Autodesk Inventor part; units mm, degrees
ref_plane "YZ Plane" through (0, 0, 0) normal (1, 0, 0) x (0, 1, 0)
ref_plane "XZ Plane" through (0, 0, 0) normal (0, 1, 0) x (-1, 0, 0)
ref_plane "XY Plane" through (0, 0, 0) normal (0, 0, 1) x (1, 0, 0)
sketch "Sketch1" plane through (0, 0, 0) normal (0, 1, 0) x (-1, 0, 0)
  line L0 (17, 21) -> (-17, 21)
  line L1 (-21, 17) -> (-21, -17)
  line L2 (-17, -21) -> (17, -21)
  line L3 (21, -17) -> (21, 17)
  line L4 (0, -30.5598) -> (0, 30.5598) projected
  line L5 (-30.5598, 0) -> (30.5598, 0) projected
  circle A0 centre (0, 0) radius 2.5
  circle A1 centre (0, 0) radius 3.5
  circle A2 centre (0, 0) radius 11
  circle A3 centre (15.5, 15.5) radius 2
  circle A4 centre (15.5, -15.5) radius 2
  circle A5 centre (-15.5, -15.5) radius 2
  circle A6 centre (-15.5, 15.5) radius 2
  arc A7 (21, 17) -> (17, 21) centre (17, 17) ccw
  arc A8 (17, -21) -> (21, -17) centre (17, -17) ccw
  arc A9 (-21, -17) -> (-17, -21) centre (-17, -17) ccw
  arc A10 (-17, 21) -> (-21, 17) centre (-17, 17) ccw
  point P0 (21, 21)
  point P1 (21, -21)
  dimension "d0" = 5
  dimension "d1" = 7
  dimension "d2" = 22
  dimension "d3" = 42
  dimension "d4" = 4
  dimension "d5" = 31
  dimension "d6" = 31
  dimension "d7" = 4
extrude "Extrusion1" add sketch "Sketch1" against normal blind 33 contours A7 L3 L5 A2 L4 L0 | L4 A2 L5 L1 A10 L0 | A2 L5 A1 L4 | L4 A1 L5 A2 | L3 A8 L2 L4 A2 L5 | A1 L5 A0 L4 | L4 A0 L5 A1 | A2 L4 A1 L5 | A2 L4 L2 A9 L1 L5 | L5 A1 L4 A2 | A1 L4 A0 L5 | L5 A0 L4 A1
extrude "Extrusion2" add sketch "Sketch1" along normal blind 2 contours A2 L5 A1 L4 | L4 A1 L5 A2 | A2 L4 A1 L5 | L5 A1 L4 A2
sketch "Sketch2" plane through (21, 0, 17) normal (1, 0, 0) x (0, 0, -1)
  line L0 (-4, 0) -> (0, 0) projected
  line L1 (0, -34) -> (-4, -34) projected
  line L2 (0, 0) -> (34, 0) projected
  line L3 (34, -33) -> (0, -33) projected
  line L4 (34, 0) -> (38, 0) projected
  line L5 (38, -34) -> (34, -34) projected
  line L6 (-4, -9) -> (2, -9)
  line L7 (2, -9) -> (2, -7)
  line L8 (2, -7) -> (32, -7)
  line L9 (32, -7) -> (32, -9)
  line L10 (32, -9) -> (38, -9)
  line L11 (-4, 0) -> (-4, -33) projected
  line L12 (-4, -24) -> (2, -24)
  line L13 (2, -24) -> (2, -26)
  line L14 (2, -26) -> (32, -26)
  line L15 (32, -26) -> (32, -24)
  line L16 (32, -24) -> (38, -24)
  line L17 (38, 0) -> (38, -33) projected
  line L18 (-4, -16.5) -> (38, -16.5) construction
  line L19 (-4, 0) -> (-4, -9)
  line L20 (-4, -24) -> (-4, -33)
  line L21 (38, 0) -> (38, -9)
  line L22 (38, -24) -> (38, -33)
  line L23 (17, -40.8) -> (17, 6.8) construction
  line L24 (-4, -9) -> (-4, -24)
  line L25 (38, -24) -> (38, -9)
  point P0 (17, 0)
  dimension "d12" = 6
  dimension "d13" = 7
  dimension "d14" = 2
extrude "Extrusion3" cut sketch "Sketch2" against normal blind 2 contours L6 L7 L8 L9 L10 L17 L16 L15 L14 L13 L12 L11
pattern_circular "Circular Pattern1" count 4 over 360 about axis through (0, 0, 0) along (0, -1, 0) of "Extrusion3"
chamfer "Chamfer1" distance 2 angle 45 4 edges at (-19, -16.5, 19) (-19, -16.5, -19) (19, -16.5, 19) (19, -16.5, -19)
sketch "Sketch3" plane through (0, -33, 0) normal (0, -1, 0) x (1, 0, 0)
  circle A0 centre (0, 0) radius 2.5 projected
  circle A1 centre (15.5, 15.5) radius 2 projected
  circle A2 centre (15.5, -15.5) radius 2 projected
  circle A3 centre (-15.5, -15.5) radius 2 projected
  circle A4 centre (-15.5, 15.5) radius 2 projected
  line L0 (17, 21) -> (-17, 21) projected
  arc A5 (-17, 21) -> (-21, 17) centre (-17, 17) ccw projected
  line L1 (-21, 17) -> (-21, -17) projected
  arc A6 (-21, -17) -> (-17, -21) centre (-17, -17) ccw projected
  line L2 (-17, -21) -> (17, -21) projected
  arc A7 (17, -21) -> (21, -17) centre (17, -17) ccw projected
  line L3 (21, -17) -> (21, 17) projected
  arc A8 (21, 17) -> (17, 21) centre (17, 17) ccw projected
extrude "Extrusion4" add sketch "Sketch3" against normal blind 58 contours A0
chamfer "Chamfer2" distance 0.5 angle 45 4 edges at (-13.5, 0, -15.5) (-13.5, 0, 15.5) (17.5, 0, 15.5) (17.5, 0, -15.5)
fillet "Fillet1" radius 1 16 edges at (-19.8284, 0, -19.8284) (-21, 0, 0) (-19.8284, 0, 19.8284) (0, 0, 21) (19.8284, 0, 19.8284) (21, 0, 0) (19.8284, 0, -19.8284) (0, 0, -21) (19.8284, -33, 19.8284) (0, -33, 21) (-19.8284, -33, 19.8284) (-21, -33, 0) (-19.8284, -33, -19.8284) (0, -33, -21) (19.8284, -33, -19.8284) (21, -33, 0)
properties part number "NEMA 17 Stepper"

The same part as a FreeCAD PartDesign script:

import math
import FreeCAD as App
import Part
import Sketcher
from FreeCAD import Vector
Q = App.Units.Quantity


def edges_at(feature, points):
    """Names of the edges that pass closest to the given points."""
    edges = feature.Shape.Edges
    near = lambda p: min(range(len(edges)), key=lambda i: edges[i].distToShape(Part.Vertex(*p))[0])
    return sorted({f"Edge{near(p) + 1}" for p in points})


def add_polygon(sketch, points):
    """Adds a closed chain of lines whose ends are joined by coincident constraints."""
    first, n = sketch.GeometryCount, len(points)
    for a, b in zip(points, points[1:] + points[:1]):
        sketch.addGeometry(Part.LineSegment(App.Vector(*a, 0), App.Vector(*b, 0)), False)
    for i in range(n):
        sketch.addConstraint(Sketcher.Constraint("Coincident", first + i, 2, first + (i + 1) % n, 1))

doc = App.newDocument("Part")
body = doc.addObject("PartDesign::Body", "Body")

# Sketch on XZ plane
sketch1 = body.newObject("Sketcher::SketchObject", "Sketch")
sketch1.AttachmentSupport = (doc.getObject("XZ_Plane"), [""])
sketch1.MapMode = "FlatFace"
sketch1.addGeometry([
    Part.ArcOfCircle(Part.Circle(Vector(-17, 17, 0), Vector(0, 0, 1), 4), math.radians(90), math.radians(180)),  # 0
    Part.LineSegment(Vector(-17, 21, 0), Vector(17, 21, 0)),  # 1
    Part.ArcOfCircle(Part.Circle(Vector(17, 17, 0), Vector(0, 0, 1), 4), math.radians(0), math.radians(90)),  # 2
    Part.LineSegment(Vector(21, 17, 0), Vector(21, -17, 0)),  # 3
    Part.ArcOfCircle(Part.Circle(Vector(17, -17, 0), Vector(0, 0, 1), 4), math.radians(-90), math.radians(0)),  # 4
    Part.LineSegment(Vector(17, -21, 0), Vector(-17, -21, 0)),  # 5
    Part.ArcOfCircle(Part.Circle(Vector(-17, -17, 0), Vector(0, 0, 1), 4), math.radians(180), math.radians(270)),  # 6
    Part.LineSegment(Vector(-21, -17, 0), Vector(-21, 17, 0)),  # 7
    Part.Circle(Vector(-15.5, 15.5, 0), Vector(0, 0, 1), 2),  # 8
    Part.Circle(Vector(-15.5, -15.5, 0), Vector(0, 0, 1), 2),  # 9
    Part.Circle(Vector(15.5, 15.5, 0), Vector(0, 0, 1), 2),  # 10
    Part.Circle(Vector(15.5, -15.5, 0), Vector(0, 0, 1), 2),  # 11
    Part.Circle(Vector(0, 0, 0), Vector(0, 0, 1), 2.5),  # 12
], False)
sketch1.addConstraint([
    Sketcher.Constraint("Tangent", 0, 1, 1, 1),
    Sketcher.Constraint("Tangent", 1, 2, 2, 2),
    Sketcher.Constraint("Tangent", 2, 1, 3, 1),
    Sketcher.Constraint("Tangent", 3, 2, 4, 2),
    Sketcher.Constraint("Tangent", 4, 1, 5, 1),
    Sketcher.Constraint("Tangent", 5, 2, 6, 2),
    Sketcher.Constraint("Tangent", 6, 1, 7, 1),
    Sketcher.Constraint("Tangent", 7, 2, 0, 2),
    Sketcher.Constraint("Horizontal", 1),
    Sketcher.Constraint("Vertical", 3),
    Sketcher.Constraint("Horizontal", 5),
    Sketcher.Constraint("Vertical", 7),
    Sketcher.Constraint("Coincident", 12, 3, -1, 1),
    Sketcher.Constraint("Equal", 0, 2),
    Sketcher.Constraint("Equal", 2, 4),
    Sketcher.Constraint("Equal", 4, 6),
    Sketcher.Constraint("Equal", 8, 9),
    Sketcher.Constraint("Equal", 9, 10),
    Sketcher.Constraint("Equal", 10, 11),
    Sketcher.Constraint("Symmetric", 0, 3, 4, 3, -1, 1),
    Sketcher.Constraint("Symmetric", 9, 3, 10, 3, -1, 1),
    Sketcher.Constraint("Symmetric", 8, 3, 11, 3, -1, 1),
    Sketcher.Constraint("Symmetric", 8, 3, 10, 3, -2),
    Sketcher.Constraint("Equal", 5, 3),
    Sketcher.Constraint("Diameter", 8, Q("4 mm")),
    Sketcher.Constraint("Diameter", 12, Q("5 mm")),
    Sketcher.Constraint("Radius", 0, Q("4 mm")),
    Sketcher.Constraint("DistanceY", 9, 3, 8, 3, Q("31 mm")),
    Sketcher.Constraint("DistanceX", 8, 3, 10, 3, Q("31 mm")),
    Sketcher.Constraint("DistanceX", 1, 1, 1, 2, Q("34 mm")),
])
pad1 = body.newObject("PartDesign::Pad", "Pad")
pad1.Profile = sketch1
pad1.Length = 33

# Sketch on XZ plane
sketch2 = body.newObject("Sketcher::SketchObject", "Sketch001")
sketch2.AttachmentSupport = (doc.getObject("XZ_Plane"), [""])
sketch2.MapMode = "FlatFace"
sketch2.addGeometry([
    Part.Circle(Vector(0, 0, 0), Vector(0, 0, 1), 11),
    Part.Circle(Vector(0, 0, 0), Vector(0, 0, 1), 3.5),
], False)
sketch2.addConstraint([
    Sketcher.Constraint("Coincident", 0, 3, -1, 1),
    Sketcher.Constraint("Coincident", 1, 3, -1, 1),
    Sketcher.Constraint("Diameter", 0, Q("22 mm")),
    Sketcher.Constraint("Diameter", 1, Q("7 mm")),
])
pad2 = body.newObject("PartDesign::Pad", "Pad001")
pad2.Profile = sketch2
pad2.Length = 2
pad2.Reversed = True

# Sketch on YZ plane
sketch3 = body.newObject("Sketcher::SketchObject", "Sketch002")
sketch3.AttachmentSupport = (doc.getObject("YZ_Plane"), [""])
sketch3.MapMode = "FlatFace"
sketch3.AttachmentOffset = App.Placement(Vector(0, 0, 21), App.Rotation())
add_polygon(sketch3, [(-9, 15), (-9, 21), (-24, 21), (-24, 15), (-26, 15), (-26, -15), (-24, -15), (-24, -21), (-9, -21), (-9, -15), (-7, -15), (-7, 15)])  # lines 0-11
sketch3.addConstraint([
    Sketcher.Constraint("Vertical", 0),
    Sketcher.Constraint("Horizontal", 1),
    Sketcher.Constraint("Vertical", 2),
    Sketcher.Constraint("Horizontal", 3),
    Sketcher.Constraint("Vertical", 4),
    Sketcher.Constraint("Horizontal", 5),
    Sketcher.Constraint("Vertical", 6),
    Sketcher.Constraint("Horizontal", 7),
    Sketcher.Constraint("Vertical", 8),
    Sketcher.Constraint("Horizontal", 9),
    Sketcher.Constraint("Vertical", 10),
    Sketcher.Constraint("Horizontal", 11),
    Sketcher.Constraint("Symmetric", 2, 2, 5, 2, -1),
    Sketcher.Constraint("Symmetric", 0, 2, 7, 2, -1),
    Sketcher.Constraint("Horizontal", 5, 2, 8, 2),
    Sketcher.Constraint("Horizontal", 3, 2, 10, 2),
    Sketcher.Constraint("Equal", 5, 9),
    Sketcher.Constraint("DistanceX", 3, 2, 3, 1, Q("2 mm")),
    Sketcher.Constraint("DistanceY", 0, 1, 0, 2, Q("6 mm")),
    Sketcher.Constraint("DistanceX", 9, 2, -1, 1, Q("7 mm")),
    Sketcher.Constraint("DistanceX", 1, 2, 1, 1, Q("15 mm")),
    Sketcher.Constraint("DistanceY", 4, 2, 4, 1, Q("30 mm")),
])
pocket1 = body.newObject("PartDesign::Pocket", "Pocket")
pocket1.Profile = sketch3
pocket1.Length = 2
doc.recompute()

polarpattern = body.newObject("PartDesign::PolarPattern", "PolarPattern")
polarpattern.Originals = [pocket1]
polarpattern.Axis = (doc.getObject("Y_Axis"), [""])
polarpattern.Angle = 360
polarpattern.Occurrences = 4
body.Tip = polarpattern
doc.recompute()

chamfer = body.newObject("PartDesign::Chamfer", "Chamfer")
chamfer.Base = (polarpattern, edges_at(polarpattern, [
    (-19, -16.5, 19),
    (-19, -16.5, -19),
    (19, -16.5, 19),
    (19, -16.5, -19),
]))
chamfer.Size = 2

# Sketch on XZ plane
sketch4 = body.newObject("Sketcher::SketchObject", "Sketch003")
sketch4.AttachmentSupport = (doc.getObject("XZ_Plane"), [""])
sketch4.MapMode = "FlatFace"
sketch4.AttachmentOffset = App.Placement(Vector(0, 0, 33), App.Rotation())
sketch4.addGeometry(Part.Circle(Vector(0, 0, 0), Vector(0, 0, 1), 2.5), False)
sketch4.addConstraint([
    Sketcher.Constraint("Coincident", 0, 3, -1, 1),
    Sketcher.Constraint("Diameter", 0, Q("5 mm")),
])
pad3 = body.newObject("PartDesign::Pad", "Pad002")
pad3.Profile = sketch4
pad3.Length = 58
pad3.Reversed = True
doc.recompute()

chamfer2 = body.newObject("PartDesign::Chamfer", "Chamfer001")
chamfer2.Base = (pad3, edges_at(pad3, [
    (-13.5, 0, -15.5),
    (-13.5, 0, 15.5),
    (17.5, 0, 15.5),
    (17.5, 0, -15.5),
]))
chamfer2.Size = 0.5
doc.recompute()

fillet = body.newObject("PartDesign::Fillet", "Fillet")
fillet.Base = (chamfer2, edges_at(chamfer2, [
    (-19.828, 0, -19.828),
    (-21, 0, 0),
    (-19.828, 0, 19.828),
    (0, 0, 21),
    (19.828, 0, 19.828),
    (21, 0, 0),
    (19.828, 0, -19.828),
    (0, 0, -21),
    (19.828, -33, 19.828),
    (0, -33, 21),
    (-19.828, -33, 19.828),
    (-21, -33, 0),
    (-19.828, -33, -19.828),
    (0, -33, -21),
    (19.828, -33, -19.828),
    (21, -33, 0),
]))
fillet.Radius = 1

doc.recompute()
